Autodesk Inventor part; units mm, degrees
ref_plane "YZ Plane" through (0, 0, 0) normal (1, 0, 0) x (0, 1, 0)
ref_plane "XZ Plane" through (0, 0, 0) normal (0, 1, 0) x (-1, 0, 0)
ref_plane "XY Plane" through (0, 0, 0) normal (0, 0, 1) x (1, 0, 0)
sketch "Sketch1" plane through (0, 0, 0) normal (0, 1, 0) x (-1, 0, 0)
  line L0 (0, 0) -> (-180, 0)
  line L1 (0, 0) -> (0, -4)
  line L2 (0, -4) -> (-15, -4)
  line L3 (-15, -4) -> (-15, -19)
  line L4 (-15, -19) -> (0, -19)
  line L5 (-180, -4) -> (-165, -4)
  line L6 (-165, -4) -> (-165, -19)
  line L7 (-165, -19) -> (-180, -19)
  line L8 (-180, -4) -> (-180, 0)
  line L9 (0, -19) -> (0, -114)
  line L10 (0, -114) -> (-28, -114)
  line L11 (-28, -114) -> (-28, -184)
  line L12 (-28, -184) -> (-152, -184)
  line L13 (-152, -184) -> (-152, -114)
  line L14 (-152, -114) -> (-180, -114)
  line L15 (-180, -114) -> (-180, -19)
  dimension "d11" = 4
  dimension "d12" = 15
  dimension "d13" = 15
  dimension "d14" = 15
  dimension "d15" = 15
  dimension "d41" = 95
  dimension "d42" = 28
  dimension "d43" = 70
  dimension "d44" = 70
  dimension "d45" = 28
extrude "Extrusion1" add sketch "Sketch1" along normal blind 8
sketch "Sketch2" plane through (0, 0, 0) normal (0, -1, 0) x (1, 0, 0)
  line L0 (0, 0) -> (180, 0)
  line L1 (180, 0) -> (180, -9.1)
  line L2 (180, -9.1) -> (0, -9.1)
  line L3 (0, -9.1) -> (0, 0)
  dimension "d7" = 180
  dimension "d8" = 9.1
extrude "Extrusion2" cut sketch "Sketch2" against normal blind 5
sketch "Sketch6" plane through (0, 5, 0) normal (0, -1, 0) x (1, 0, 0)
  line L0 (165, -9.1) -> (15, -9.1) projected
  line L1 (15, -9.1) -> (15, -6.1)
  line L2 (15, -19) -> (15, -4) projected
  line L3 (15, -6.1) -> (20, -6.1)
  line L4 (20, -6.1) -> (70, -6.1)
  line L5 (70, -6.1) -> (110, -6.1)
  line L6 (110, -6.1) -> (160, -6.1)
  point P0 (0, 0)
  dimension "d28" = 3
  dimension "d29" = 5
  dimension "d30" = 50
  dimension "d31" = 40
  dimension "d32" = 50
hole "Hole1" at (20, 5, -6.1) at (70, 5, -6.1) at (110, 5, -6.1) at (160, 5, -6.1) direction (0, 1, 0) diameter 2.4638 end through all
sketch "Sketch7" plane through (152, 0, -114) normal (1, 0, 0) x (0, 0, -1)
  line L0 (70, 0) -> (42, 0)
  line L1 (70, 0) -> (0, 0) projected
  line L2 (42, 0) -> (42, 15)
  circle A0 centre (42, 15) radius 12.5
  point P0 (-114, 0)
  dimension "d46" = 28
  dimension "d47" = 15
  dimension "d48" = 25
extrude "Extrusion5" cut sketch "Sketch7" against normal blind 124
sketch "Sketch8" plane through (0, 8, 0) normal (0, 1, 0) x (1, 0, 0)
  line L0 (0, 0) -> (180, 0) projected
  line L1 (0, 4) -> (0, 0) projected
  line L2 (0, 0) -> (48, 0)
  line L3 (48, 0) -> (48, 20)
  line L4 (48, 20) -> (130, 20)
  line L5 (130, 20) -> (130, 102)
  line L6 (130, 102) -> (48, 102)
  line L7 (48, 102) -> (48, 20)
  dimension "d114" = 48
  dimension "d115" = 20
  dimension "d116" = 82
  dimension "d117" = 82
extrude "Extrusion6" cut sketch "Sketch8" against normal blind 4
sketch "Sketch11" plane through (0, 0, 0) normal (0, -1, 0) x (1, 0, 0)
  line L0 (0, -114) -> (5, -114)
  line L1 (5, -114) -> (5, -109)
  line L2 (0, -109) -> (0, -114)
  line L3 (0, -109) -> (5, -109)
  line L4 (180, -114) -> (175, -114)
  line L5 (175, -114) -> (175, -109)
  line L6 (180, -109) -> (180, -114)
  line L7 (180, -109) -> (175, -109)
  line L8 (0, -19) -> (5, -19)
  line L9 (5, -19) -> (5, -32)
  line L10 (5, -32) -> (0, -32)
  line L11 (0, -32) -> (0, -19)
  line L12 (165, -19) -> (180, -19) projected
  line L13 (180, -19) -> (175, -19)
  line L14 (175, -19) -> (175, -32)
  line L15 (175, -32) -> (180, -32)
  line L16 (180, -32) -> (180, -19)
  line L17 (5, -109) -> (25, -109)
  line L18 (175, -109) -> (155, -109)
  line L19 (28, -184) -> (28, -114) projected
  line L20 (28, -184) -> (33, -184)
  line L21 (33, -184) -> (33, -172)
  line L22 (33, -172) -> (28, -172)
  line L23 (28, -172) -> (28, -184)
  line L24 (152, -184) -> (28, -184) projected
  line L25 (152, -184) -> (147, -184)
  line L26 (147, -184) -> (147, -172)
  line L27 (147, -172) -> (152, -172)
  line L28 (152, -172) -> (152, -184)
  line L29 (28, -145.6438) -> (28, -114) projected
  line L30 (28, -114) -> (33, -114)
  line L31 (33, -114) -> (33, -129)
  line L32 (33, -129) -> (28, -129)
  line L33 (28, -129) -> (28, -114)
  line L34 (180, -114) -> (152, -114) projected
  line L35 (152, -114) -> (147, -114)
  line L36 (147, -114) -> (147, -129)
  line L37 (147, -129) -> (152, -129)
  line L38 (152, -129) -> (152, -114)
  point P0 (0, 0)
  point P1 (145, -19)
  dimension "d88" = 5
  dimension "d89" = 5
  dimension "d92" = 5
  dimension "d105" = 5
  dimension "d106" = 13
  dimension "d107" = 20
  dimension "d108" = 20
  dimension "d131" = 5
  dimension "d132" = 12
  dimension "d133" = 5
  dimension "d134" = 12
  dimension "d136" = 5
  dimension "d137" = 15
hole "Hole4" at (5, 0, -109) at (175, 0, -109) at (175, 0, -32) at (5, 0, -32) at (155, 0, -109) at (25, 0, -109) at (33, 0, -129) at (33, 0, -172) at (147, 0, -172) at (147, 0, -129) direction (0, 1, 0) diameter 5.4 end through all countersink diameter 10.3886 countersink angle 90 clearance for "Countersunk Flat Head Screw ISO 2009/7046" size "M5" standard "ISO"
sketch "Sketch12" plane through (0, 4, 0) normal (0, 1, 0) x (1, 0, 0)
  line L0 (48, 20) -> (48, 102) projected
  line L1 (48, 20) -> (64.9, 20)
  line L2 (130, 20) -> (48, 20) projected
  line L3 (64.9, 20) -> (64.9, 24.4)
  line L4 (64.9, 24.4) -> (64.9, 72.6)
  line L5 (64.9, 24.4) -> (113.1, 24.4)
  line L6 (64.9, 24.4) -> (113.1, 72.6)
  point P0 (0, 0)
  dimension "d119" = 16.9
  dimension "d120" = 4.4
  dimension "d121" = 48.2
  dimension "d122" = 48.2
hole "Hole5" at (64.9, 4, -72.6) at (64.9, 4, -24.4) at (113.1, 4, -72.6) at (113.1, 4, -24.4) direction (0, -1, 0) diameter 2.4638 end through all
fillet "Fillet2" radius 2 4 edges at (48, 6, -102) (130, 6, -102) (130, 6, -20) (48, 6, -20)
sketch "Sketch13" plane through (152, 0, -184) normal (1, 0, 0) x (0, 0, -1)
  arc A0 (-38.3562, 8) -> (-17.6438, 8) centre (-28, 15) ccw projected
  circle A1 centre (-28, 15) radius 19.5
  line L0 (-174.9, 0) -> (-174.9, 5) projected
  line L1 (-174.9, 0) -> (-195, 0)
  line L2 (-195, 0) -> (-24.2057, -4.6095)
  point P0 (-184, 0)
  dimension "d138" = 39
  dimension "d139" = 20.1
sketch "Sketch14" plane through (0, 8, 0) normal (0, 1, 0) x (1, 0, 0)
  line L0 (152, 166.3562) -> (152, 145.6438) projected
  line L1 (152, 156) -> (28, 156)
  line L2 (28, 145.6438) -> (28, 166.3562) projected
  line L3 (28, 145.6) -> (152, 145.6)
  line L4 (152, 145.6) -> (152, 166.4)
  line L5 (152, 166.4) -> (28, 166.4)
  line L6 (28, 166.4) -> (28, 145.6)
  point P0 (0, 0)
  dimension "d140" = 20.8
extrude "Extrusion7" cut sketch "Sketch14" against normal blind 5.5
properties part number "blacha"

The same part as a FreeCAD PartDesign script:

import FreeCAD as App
import Part
import Sketcher
from FreeCAD import Vector


def edges_at(feature, points):
    """Names of the edges that pass closest to the given points."""
    edges = feature.Shape.Edges
    near = lambda p: min(range(len(edges)), key=lambda i: edges[i].distToShape(Part.Vertex(*p))[0])
    return sorted({f"Edge{near(p) + 1}" for p in points})


def add_polygon(sketch, points):
    """Adds a closed chain of lines whose ends are joined by coincident constraints."""
    first, n = sketch.GeometryCount, len(points)
    for a, b in zip(points, points[1:] + points[:1]):
        sketch.addGeometry(Part.LineSegment(App.Vector(*a, 0), App.Vector(*b, 0)), False)
    for i in range(n):
        sketch.addConstraint(Sketcher.Constraint("Coincident", first + i, 2, first + (i + 1) % n, 1))

doc = App.newDocument("Part")
body = doc.addObject("PartDesign::Body", "Body")

# Sketch on XZ plane
sketch1 = body.newObject("Sketcher::SketchObject", "Sketch")
sketch1.AttachmentSupport = (doc.getObject("XZ_Plane"), [""])
sketch1.MapMode = "FlatFace"
add_polygon(sketch1, [(0, -4), (0, 0), (180, 0), (180, -4), (165, -4), (165, -19), (180, -19), (180, -114), (152, -114), (152, -184), (28, -184), (28, -114), (0, -114), (0, -19), (15, -19), (15, -4)])  # lines 0-15
sketch1.addConstraint(Sketcher.Constraint("Vertical", 0))
sketch1.addConstraint(Sketcher.Constraint("Horizontal", 1))
sketch1.addConstraint(Sketcher.Constraint("Vertical", 2))
sketch1.addConstraint(Sketcher.Constraint("Horizontal", 3))
sketch1.addConstraint(Sketcher.Constraint("Vertical", 4))
sketch1.addConstraint(Sketcher.Constraint("Horizontal", 5))
sketch1.addConstraint(Sketcher.Constraint("Vertical", 6))
sketch1.addConstraint(Sketcher.Constraint("Horizontal", 7))
sketch1.addConstraint(Sketcher.Constraint("Vertical", 8))
sketch1.addConstraint(Sketcher.Constraint("Horizontal", 9))
sketch1.addConstraint(Sketcher.Constraint("Vertical", 10))
sketch1.addConstraint(Sketcher.Constraint("Horizontal", 11))
sketch1.addConstraint(Sketcher.Constraint("Vertical", 12))
sketch1.addConstraint(Sketcher.Constraint("Horizontal", 13))
sketch1.addConstraint(Sketcher.Constraint("Vertical", 14))
sketch1.addConstraint(Sketcher.Constraint("Horizontal", 15))
sketch1.addConstraint(Sketcher.Constraint("Coincident", 0, 2, -1, 1))
sketch1.addConstraint(Sketcher.Constraint("PointOnObject", 11, 2, -2))
sketch1.addConstraint(Sketcher.Constraint("Horizontal", 7, 2, 10, 2))
sketch1.addConstraint(Sketcher.Constraint("Horizontal", 5, 2, 12, 2))
sketch1.addConstraint(Sketcher.Constraint("Horizontal", 3, 2, 14, 2))
sketch1.addConstraint(Sketcher.Constraint("Vertical", 2, 2, 5, 2))
sketch1.addConstraint(Sketcher.Constraint("Equal", 7, 11))
sketch1.addConstraint(Sketcher.Constraint("Equal", 5, 13))
sketch1.addConstraint(Sketcher.Constraint("Equal", 15, 4))
sketch1.addConstraint(Sketcher.Constraint("DistanceX", 3, 2, 3, 1, 15.0))
sketch1.addConstraint(Sketcher.Constraint("DistanceX", 7, 2, 7, 1, 28.0))
sketch1.addConstraint(Sketcher.Constraint("DistanceY", 0, 1, 0, 2, 4.0))
sketch1.addConstraint(Sketcher.Constraint("DistanceY", 6, 2, 6, 1, 95.0))
sketch1.addConstraint(Sketcher.Constraint("DistanceY", 8, 2, 8, 1, 70.0))
sketch1.addConstraint(Sketcher.Constraint("DistanceX", 1, 1, 1, 2, 180.0))
pad1 = body.newObject("PartDesign::Pad", "Pad")
pad1.Profile = sketch1
pad1.Length = 8
pad1.Reversed = True

# Sketch on XZ plane
sketch2 = body.newObject("Sketcher::SketchObject", "Sketch001")
sketch2.AttachmentSupport = (doc.getObject("XZ_Plane"), [""])
sketch2.MapMode = "FlatFace"
add_polygon(sketch2, [(180, 0), (0, 0), (0, -9), (180, -9)])  # lines 0-3
sketch2.addConstraint(Sketcher.Constraint("Horizontal", 0))
sketch2.addConstraint(Sketcher.Constraint("Vertical", 1))
sketch2.addConstraint(Sketcher.Constraint("Horizontal", 2))
sketch2.addConstraint(Sketcher.Constraint("Vertical", 3))
sketch2.addConstraint(Sketcher.Constraint("Coincident", 0, 2, -1, 1))
sketch2.addConstraint(Sketcher.Constraint("DistanceX", 0, 2, 0, 1, 180.0))
sketch2.addConstraint(Sketcher.Constraint("DistanceY", 1, 2, 1, 1, 9.1))
pocket1 = body.newObject("PartDesign::Pocket", "Pocket")
pocket1.Profile = sketch2
pocket1.Length = 5

# Sketch on XZ plane
sketch3 = body.newObject("Sketcher::SketchObject", "Sketch002")
sketch3.AttachmentSupport = (doc.getObject("XZ_Plane"), [""])
sketch3.MapMode = "FlatFace"
sketch3.AttachmentOffset = App.Placement(Vector(0, 0, -5), App.Rotation())
sketch3.addGeometry(Part.Circle(Vector(20, -6.1, 0), Vector(0, 0, 1), 1.2), False)
sketch3.addGeometry(Part.Circle(Vector(70, -6.1, 0), Vector(0, 0, 1), 1.2), False)
sketch3.addGeometry(Part.Circle(Vector(110, -6.1, 0), Vector(0, 0, 1), 1.2), False)
sketch3.addGeometry(Part.Circle(Vector(160, -6.1, 0), Vector(0, 0, 1), 1.2), False)
sketch3.addConstraint(Sketcher.Constraint("Equal", 0, 1))
sketch3.addConstraint(Sketcher.Constraint("Equal", 1, 2))
sketch3.addConstraint(Sketcher.Constraint("Equal", 2, 3))
sketch3.addConstraint(Sketcher.Constraint("Horizontal", 0, 3, 1, 3))
sketch3.addConstraint(Sketcher.Constraint("Horizontal", 1, 3, 2, 3))
sketch3.addConstraint(Sketcher.Constraint("Horizontal", 2, 3, 3, 3))
sketch3.addConstraint(Sketcher.Constraint("DistanceX", -1, 1, 0, 3, 20.0))
sketch3.addConstraint(Sketcher.Constraint("DistanceX", -1, 1, 1, 3, 70.0))
sketch3.addConstraint(Sketcher.Constraint("DistanceX", -1, 1, 2, 3, 110.0))
sketch3.addConstraint(Sketcher.Constraint("DistanceX", -1, 1, 3, 3, 160.0))
sketch3.addConstraint(Sketcher.Constraint("Diameter", 0, 2.4638))
sketch3.addConstraint(Sketcher.Constraint("DistanceY", 0, 3, -1, 1, 6.1))
doc.recompute()
hole = body.newObject("PartDesign::Hole", "Hole")
hole.Profile = sketch3
hole.ThreadType = "None"
hole.Diameter = 2.4638
hole.DepthType = "ThroughAll"

# Sketch on YZ plane
sketch4 = body.newObject("Sketcher::SketchObject", "Sketch003")
sketch4.AttachmentSupport = (doc.getObject("YZ_Plane"), [""])
sketch4.MapMode = "FlatFace"
sketch4.AttachmentOffset = App.Placement(Vector(0, 0, 152), App.Rotation())
sketch4.addGeometry(Part.Circle(Vector(15, -156, 0), Vector(0, 0, 1), 12), False)
sketch4.addConstraint(Sketcher.Constraint("Diameter", 0, 25.0))
sketch4.addConstraint(Sketcher.Constraint("DistanceX", -1, 1, 0, 3, 15.0))
sketch4.addConstraint(Sketcher.Constraint("DistanceY", 0, 3, -1, 1, 156.0))
pocket2 = body.newObject("PartDesign::Pocket", "Pocket001")
pocket2.Profile = sketch4
pocket2.Length = 124

# Sketch on XZ plane
sketch5 = body.newObject("Sketcher::SketchObject", "Sketch004")
sketch5.AttachmentSupport = (doc.getObject("XZ_Plane"), [""])
sketch5.MapMode = "FlatFace"
sketch5.AttachmentOffset = App.Placement(Vector(0, 0, -8), App.Rotation())
add_polygon(sketch5, [(48, -102), (48, -20), (130, -20), (130, -102)])  # lines 0-3
sketch5.addConstraint(Sketcher.Constraint("Vertical", 0))
sketch5.addConstraint(Sketcher.Constraint("Horizontal", 1))
sketch5.addConstraint(Sketcher.Constraint("Vertical", 2))
sketch5.addConstraint(Sketcher.Constraint("Horizontal", 3))
sketch5.addConstraint(Sketcher.Constraint("Equal", 3, 0))
sketch5.addConstraint(Sketcher.Constraint("DistanceX", 1, 1, 1, 2, 82.0))
sketch5.addConstraint(Sketcher.Constraint("DistanceX", -1, 1, 0, 2, 48.0))
sketch5.addConstraint(Sketcher.Constraint("DistanceY", 0, 2, -1, 1, 20.0))
pocket3 = body.newObject("PartDesign::Pocket", "Pocket002")
pocket3.Profile = sketch5
pocket3.Length = 4
pocket3.Reversed = True

# Sketch on XZ plane
sketch6 = body.newObject("Sketcher::SketchObject", "Sketch005")
sketch6.AttachmentSupport = (doc.getObject("XZ_Plane"), [""])
sketch6.MapMode = "FlatFace"
sketch6.addGeometry(Part.Circle(Vector(5, -109, 0), Vector(0, 0, 1), 2.7), False)
sketch6.addGeometry(Part.Circle(Vector(175, -109, 0), Vector(0, 0, 1), 2.7), False)
sketch6.addGeometry(Part.Circle(Vector(175, -32, 0), Vector(0, 0, 1), 2.7), False)
sketch6.addGeometry(Part.Circle(Vector(5, -32, 0), Vector(0, 0, 1), 2.7), False)
sketch6.addGeometry(Part.Circle(Vector(155, -109, 0), Vector(0, 0, 1), 2.7), False)
sketch6.addGeometry(Part.Circle(Vector(25, -109, 0), Vector(0, 0, 1), 2.7), False)
sketch6.addGeometry(Part.Circle(Vector(33, -129, 0), Vector(0, 0, 1), 2.7), False)
sketch6.addGeometry(Part.Circle(Vector(33, -172, 0), Vector(0, 0, 1), 2.7), False)
sketch6.addGeometry(Part.Circle(Vector(147, -172, 0), Vector(0, 0, 1), 2.7), False)
sketch6.addGeometry(Part.Circle(Vector(147, -129, 0), Vector(0, 0, 1), 2.7), False)
sketch6.addConstraint(Sketcher.Constraint("Equal", 0, 1))
sketch6.addConstraint(Sketcher.Constraint("Equal", 1, 2))
sketch6.addConstraint(Sketcher.Constraint("Equal", 2, 3))
sketch6.addConstraint(Sketcher.Constraint("Equal", 3, 4))
sketch6.addConstraint(Sketcher.Constraint("Equal", 4, 5))
sketch6.addConstraint(Sketcher.Constraint("Equal", 5, 6))
sketch6.addConstraint(Sketcher.Constraint("Equal", 6, 7))
sketch6.addConstraint(Sketcher.Constraint("Equal", 7, 8))
sketch6.addConstraint(Sketcher.Constraint("Equal", 8, 9))
sketch6.addConstraint(Sketcher.Constraint("Horizontal", 0, 3, 1, 3))
sketch6.addConstraint(Sketcher.Constraint("Horizontal", 2, 3, 3, 3))
sketch6.addConstraint(Sketcher.Constraint("Horizontal", 1, 3, 4, 3))
sketch6.addConstraint(Sketcher.Constraint("Horizontal", 4, 3, 5, 3))
sketch6.addConstraint(Sketcher.Constraint("Horizontal", 7, 3, 8, 3))
sketch6.addConstraint(Sketcher.Constraint("Horizontal", 6, 3, 9, 3))
sketch6.addConstraint(Sketcher.Constraint("Vertical", 1, 3, 2, 3))
sketch6.addConstraint(Sketcher.Constraint("Vertical", 0, 3, 3, 3))
sketch6.addConstraint(Sketcher.Constraint("Vertical", 6, 3, 7, 3))
sketch6.addConstraint(Sketcher.Constraint("Vertical", 8, 3, 9, 3))
sketch6.addConstraint(Sketcher.Constraint("Diameter", 0, 5.4))
sketch6.addConstraint(Sketcher.Constraint("DistanceX", -1, 1, 0, 3, 5.0))
sketch6.addConstraint(Sketcher.Constraint("DistanceY", 0, 3, -1, 1, 109.0))
sketch6.addConstraint(Sketcher.Constraint("DistanceX", -1, 1, 1, 3, 175.0))
sketch6.addConstraint(Sketcher.Constraint("DistanceY", 2, 3, -1, 1, 32.0))
sketch6.addConstraint(Sketcher.Constraint("DistanceX", -1, 1, 4, 3, 155.0))
sketch6.addConstraint(Sketcher.Constraint("DistanceX", -1, 1, 5, 3, 25.0))
sketch6.addConstraint(Sketcher.Constraint("DistanceX", -1, 1, 6, 3, 33.0))
sketch6.addConstraint(Sketcher.Constraint("DistanceY", 6, 3, -1, 1, 129.0))
sketch6.addConstraint(Sketcher.Constraint("DistanceY", 7, 3, -1, 1, 172.0))
sketch6.addConstraint(Sketcher.Constraint("DistanceX", -1, 1, 8, 3, 147.0))
doc.recompute()
hole2 = body.newObject("PartDesign::Hole", "Hole001")
hole2.Profile = sketch6
hole2.ThreadType = "None"
hole2.Diameter = 5.4
hole2.DepthType = "ThroughAll"
hole2.HoleCutType = "Countersink"
hole2.HoleCutDiameter = 10.3886
hole2.HoleCutCountersinkAngle = 90

# Sketch on XZ plane
sketch7 = body.newObject("Sketcher::SketchObject", "Sketch006")
sketch7.AttachmentSupport = (doc.getObject("XZ_Plane"), [""])
sketch7.MapMode = "FlatFace"
sketch7.AttachmentOffset = App.Placement(Vector(0, 0, -4), App.Rotation())
sketch7.addGeometry(Part.Circle(Vector(64.9, -72.6, 0), Vector(0, 0, 1), 1.2), False)
sketch7.addGeometry(Part.Circle(Vector(64.9, -24.4, 0), Vector(0, 0, 1), 1.2), False)
sketch7.addGeometry(Part.Circle(Vector(113.1, -72.6, 0), Vector(0, 0, 1), 1.2), False)
sketch7.addGeometry(Part.Circle(Vector(113.1, -24.4, 0), Vector(0, 0, 1), 1.2), False)
sketch7.addConstraint(Sketcher.Constraint("Equal", 0, 1))
sketch7.addConstraint(Sketcher.Constraint("Equal", 1, 2))
sketch7.addConstraint(Sketcher.Constraint("Equal", 2, 3))
sketch7.addConstraint(Sketcher.Constraint("Horizontal", 0, 3, 2, 3))
sketch7.addConstraint(Sketcher.Constraint("Horizontal", 1, 3, 3, 3))
sketch7.addConstraint(Sketcher.Constraint("Vertical", 0, 3, 1, 3))
sketch7.addConstraint(Sketcher.Constraint("Vertical", 2, 3, 3, 3))
sketch7.addConstraint(Sketcher.Constraint("Diameter", 0, 2.4638))
sketch7.addConstraint(Sketcher.Constraint("DistanceX", -1, 1, 0, 3, 64.9))
sketch7.addConstraint(Sketcher.Constraint("DistanceY", 0, 3, -1, 1, 72.6))
sketch7.addConstraint(Sketcher.Constraint("DistanceY", 1, 3, -1, 1, 24.4))
sketch7.addConstraint(Sketcher.Constraint("DistanceX", -1, 1, 2, 3, 113.1))
doc.recompute()
hole3 = body.newObject("PartDesign::Hole", "Hole002")
hole3.Profile = sketch7
hole3.ThreadType = "None"
hole3.Diameter = 2.4638
hole3.DepthType = "ThroughAll"
hole3.Reversed = True
doc.recompute()

fillet = body.newObject("PartDesign::Fillet", "Fillet")
fillet.Base = (hole3, edges_at(hole3, [
    (48, 6, -102),
    (130, 6, -102),
    (130, 6, -20),
    (48, 6, -20),
]))
fillet.Radius = 2

# Sketch on XZ plane
sketch8 = body.newObject("Sketcher::SketchObject", "Sketch007")
sketch8.AttachmentSupport = (doc.getObject("XZ_Plane"), [""])
sketch8.MapMode = "FlatFace"
sketch8.AttachmentOffset = App.Placement(Vector(0, 0, -8), App.Rotation())
add_polygon(sketch8, [(152, -166), (28, -166), (28, -146), (152, -146)])  # lines 0-3
sketch8.addConstraint(Sketcher.Constraint("Horizontal", 0))
sketch8.addConstraint(Sketcher.Constraint("Vertical", 1))
sketch8.addConstraint(Sketcher.Constraint("Horizontal", 2))
sketch8.addConstraint(Sketcher.Constraint("Vertical", 3))
sketch8.addConstraint(Sketcher.Constraint("DistanceY", 1, 1, 1, 2, 20.8))
sketch8.addConstraint(Sketcher.Constraint("DistanceX", 0, 2, 0, 1, 124.0))
sketch8.addConstraint(Sketcher.Constraint("DistanceX", -1, 1, 0, 2, 28.0))
sketch8.addConstraint(Sketcher.Constraint("DistanceY", 0, 2, -1, 1, 166.4))
pocket4 = body.newObject("PartDesign::Pocket", "Pocket003")
pocket4.Profile = sketch8
pocket4.Length = 5.5
pocket4.Reversed = True

doc.recompute()
